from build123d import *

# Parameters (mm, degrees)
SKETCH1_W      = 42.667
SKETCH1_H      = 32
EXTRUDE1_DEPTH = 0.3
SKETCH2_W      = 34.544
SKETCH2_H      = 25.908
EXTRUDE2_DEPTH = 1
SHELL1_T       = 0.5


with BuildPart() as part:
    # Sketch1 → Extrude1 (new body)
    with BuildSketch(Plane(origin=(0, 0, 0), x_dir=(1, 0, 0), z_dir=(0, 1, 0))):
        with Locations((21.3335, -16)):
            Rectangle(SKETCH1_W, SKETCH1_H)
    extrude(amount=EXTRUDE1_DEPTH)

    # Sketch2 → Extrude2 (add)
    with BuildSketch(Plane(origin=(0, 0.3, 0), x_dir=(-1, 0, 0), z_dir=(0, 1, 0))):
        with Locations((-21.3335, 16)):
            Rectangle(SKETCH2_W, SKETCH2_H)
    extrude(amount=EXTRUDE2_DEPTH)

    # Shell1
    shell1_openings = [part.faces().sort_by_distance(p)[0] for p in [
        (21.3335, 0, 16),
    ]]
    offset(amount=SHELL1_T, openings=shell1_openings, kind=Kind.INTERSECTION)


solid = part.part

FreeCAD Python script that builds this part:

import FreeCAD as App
import Part
import Sketcher


def faces_at(feature, points):
    """Names of the faces that lie closest to the given points."""
    faces = feature.Shape.Faces
    near = lambda p: min(range(len(faces)), key=lambda i: faces[i].distToShape(Part.Vertex(*p))[0])
    return sorted({f"Face{near(p) + 1}" for p in points})


def add_polygon(sketch, points):
    """Adds a closed chain of lines whose ends are joined by coincident constraints."""
    first, n = sketch.GeometryCount, len(points)
    for a, b in zip(points, points[1:] + points[:1]):
        sketch.addGeometry(Part.LineSegment(App.Vector(*a, 0), App.Vector(*b, 0)), False)
    for i in range(n):
        sketch.addConstraint(Sketcher.Constraint("Coincident", first + i, 2, first + (i + 1) % n, 1))

doc = App.newDocument("Part")
body = doc.addObject("PartDesign::Body", "Body")

sketch1 = body.newObject("Sketcher::SketchObject", "Sketch")
sketch1.AttachmentSupport = (doc.getObject("XZ_Plane"), [""])
sketch1.MapMode = "FlatFace"
add_polygon(sketch1, [(0, 0), (0, 32), (42.667, 32), (42.667, 0)])
sketch1.addConstraint([
    Sketcher.Constraint("Vertical", 0),
    Sketcher.Constraint("Horizontal", 1),
    Sketcher.Constraint("Vertical", 2),
    Sketcher.Constraint("Horizontal", 3),
    Sketcher.Constraint("Coincident", 3, 2, -1, 1),
    Sketcher.Constraint("DistanceY", 0, 1, 0, 2, 32.0),
    Sketcher.Constraint("DistanceX", 1, 1, 1, 2, 42.667),
])
pad1 = body.newObject("PartDesign::Pad", "Pad")
pad1.Profile = sketch1
pad1.Length = 0.3
pad1.Reversed = True

sketch2 = body.newObject("Sketcher::SketchObject", "Sketch001")
sketch2.AttachmentSupport = (doc.getObject("XZ_Plane"), [""])
sketch2.MapMode = "FlatFace"
sketch2.AttachmentOffset = App.Placement(App.Vector(0, 0, -0.3), App.Rotation())
add_polygon(sketch2, [(38.6055, 28.954), (38.6055, 3.046), (4.0615, 3.046), (4.0615, 28.954)])
sketch2.addConstraint([
    Sketcher.Constraint("Vertical", 0),
    Sketcher.Constraint("Horizontal", 1),
    Sketcher.Constraint("Vertical", 2),
    Sketcher.Constraint("Horizontal", 3),
    Sketcher.Constraint("DistanceX", 1, 2, 1, 1, 34.544),
    Sketcher.Constraint("DistanceY", 0, 2, 0, 1, 25.908),
    Sketcher.Constraint("DistanceY", -1, 1, 0, 2, 3.046),
    Sketcher.Constraint("DistanceX", -1, 1, 0, 2, 38.6055),
])
pad2 = body.newObject("PartDesign::Pad", "Pad001")
pad2.Profile = sketch2
pad2.Length = 1
pad2.Reversed = True
doc.recompute()

thickness = body.newObject("PartDesign::Thickness", "Thickness")
thickness.Base = (pad2, faces_at(pad2, [(21.334, 0, 16)]))
thickness.Value = 0.5
thickness.Reversed = False
thickness.Join = "Intersection"

doc.recompute()
